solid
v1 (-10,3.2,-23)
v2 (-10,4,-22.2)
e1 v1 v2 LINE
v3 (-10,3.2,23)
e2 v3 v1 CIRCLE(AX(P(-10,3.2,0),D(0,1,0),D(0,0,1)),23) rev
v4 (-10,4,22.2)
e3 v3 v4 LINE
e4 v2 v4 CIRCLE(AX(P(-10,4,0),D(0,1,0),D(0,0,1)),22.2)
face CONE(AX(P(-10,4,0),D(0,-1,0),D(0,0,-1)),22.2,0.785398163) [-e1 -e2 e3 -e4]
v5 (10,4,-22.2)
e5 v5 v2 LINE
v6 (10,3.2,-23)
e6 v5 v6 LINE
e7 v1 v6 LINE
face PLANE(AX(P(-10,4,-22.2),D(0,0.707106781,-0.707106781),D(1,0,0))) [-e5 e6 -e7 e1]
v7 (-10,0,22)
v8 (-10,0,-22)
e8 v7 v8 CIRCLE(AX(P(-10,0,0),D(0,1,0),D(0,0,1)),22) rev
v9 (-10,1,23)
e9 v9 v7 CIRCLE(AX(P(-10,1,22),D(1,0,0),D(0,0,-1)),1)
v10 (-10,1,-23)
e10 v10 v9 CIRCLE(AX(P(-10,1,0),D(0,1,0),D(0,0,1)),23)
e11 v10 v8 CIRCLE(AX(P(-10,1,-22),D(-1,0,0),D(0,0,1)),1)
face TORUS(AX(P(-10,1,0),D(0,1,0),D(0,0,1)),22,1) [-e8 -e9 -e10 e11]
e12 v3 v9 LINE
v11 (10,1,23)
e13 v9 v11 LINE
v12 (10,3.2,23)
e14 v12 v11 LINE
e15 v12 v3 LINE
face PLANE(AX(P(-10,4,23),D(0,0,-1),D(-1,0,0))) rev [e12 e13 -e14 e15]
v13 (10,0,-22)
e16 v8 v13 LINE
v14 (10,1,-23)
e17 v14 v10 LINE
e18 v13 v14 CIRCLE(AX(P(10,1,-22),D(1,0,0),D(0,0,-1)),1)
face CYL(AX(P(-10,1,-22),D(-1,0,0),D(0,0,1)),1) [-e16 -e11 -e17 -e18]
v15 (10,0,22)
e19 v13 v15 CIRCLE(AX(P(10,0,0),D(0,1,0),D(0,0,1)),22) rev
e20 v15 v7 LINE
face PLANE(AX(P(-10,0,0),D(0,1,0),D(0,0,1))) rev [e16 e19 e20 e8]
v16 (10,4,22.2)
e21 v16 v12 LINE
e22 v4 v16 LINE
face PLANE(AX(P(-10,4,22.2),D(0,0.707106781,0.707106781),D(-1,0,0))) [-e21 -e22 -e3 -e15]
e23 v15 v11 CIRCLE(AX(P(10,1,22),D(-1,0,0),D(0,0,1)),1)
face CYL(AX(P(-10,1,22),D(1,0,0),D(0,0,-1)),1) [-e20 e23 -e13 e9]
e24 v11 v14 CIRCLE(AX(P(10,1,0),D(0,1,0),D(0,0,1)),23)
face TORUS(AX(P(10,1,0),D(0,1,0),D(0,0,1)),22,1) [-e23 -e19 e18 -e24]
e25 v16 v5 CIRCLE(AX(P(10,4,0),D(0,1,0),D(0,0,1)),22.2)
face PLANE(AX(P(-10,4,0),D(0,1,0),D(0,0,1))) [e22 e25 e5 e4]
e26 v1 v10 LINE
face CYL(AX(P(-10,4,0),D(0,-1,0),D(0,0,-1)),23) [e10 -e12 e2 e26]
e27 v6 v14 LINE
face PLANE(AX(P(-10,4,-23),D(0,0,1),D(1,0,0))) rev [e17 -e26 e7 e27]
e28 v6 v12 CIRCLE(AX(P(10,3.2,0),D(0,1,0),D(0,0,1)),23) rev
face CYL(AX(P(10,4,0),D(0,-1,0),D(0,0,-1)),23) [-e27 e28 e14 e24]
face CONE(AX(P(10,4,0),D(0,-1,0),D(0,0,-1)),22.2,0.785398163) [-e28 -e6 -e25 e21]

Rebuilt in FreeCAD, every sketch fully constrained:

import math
import FreeCAD as App
import Part
import Sketcher

V = App.Vector


def edges_at(feature, points):
    """Names of the edges that pass closest to the given points."""
    edges = feature.Shape.Edges
    near = lambda p: min(range(len(edges)), key=lambda i: edges[i].distToShape(Part.Vertex(*p))[0])
    return sorted({f"Edge{near(p) + 1}" for p in points})

doc = App.newDocument("Part")
params = doc.addObject("Spreadsheet::Sheet", "Params")
for row, (alias, value) in enumerate([
    ("sketch1_radius", "23 mm"),
    ("sketch1_width", "20 mm"),
    ("pad1_length", "4 mm"),
    ("chamfer_size", "0.8 mm"),
    ("fillet_radius", "1 mm"),
], start=1):
    params.set(f"A{row}", alias)
    params.set(f"B{row}", "=" + value)
    params.setAlias(f"B{row}", alias)

body = doc.addObject("PartDesign::Body", "Body")

sketch1 = body.newObject("Sketcher::SketchObject", "Sketch")
sketch1.AttachmentSupport = (doc.getObject("XZ_Plane"), [""])
sketch1.MapMode = "FlatFace"
sketch1.addGeometry([
    Part.LineSegment(V(10, -23, 0), V(-10, -23, 0)),
    Part.ArcOfCircle(Part.Circle(V(-10, 0, 0), V(0, 0, 1), 23), math.radians(90), math.radians(270)),
    Part.LineSegment(V(-10, 23, 0), V(10, 23, 0)),
    Part.ArcOfCircle(Part.Circle(V(10, 0, 0), V(0, 0, 1), 23), math.radians(-90), math.radians(90)),
], False)
sketch1.addConstraint([
    Sketcher.Constraint("Tangent", 0, 2, 1, 2),
    Sketcher.Constraint("Tangent", 1, 1, 2, 1),
    Sketcher.Constraint("Tangent", 2, 2, 3, 2),
    Sketcher.Constraint("Tangent", 3, 1, 0, 1),
    Sketcher.Constraint("Horizontal", 0),
    Sketcher.Constraint("Horizontal", 2),
    Sketcher.Constraint("Symmetric", 1, 3, 3, 3, -1, 1),
    Sketcher.Constraint("Radius", 1, 23.0),
    Sketcher.Constraint("DistanceX", 0, 2, 0, 1, 20.0),
])
sketch1.setExpression("Constraints[7]", "Params.sketch1_radius")
sketch1.setExpression("Constraints[8]", "Params.sketch1_width")
pad1 = body.newObject("PartDesign::Pad", "Pad")
pad1.Profile = sketch1
pad1.setExpression("Length", "Params.pad1_length")
pad1.Reversed = True
doc.recompute()

chamfer = body.newObject("PartDesign::Chamfer", "Chamfer")
chamfer.Base = (pad1, edges_at(pad1, [
    (33, 4, 0),
    (0, 4, -23),
    (-33, 4, 0),
    (0, 4, 23),
]))
chamfer.setExpression("Size", "Params.chamfer_size")
doc.recompute()

fillet = body.newObject("PartDesign::Fillet", "Fillet")
fillet.Base = (chamfer, edges_at(chamfer, [
    (0, 0, -23),
    (33, 0, 0),
    (0, 0, 23),
    (-33, 0, 0),
]))
fillet.setExpression("Radius", "Params.fillet_radius")

doc.recompute()
